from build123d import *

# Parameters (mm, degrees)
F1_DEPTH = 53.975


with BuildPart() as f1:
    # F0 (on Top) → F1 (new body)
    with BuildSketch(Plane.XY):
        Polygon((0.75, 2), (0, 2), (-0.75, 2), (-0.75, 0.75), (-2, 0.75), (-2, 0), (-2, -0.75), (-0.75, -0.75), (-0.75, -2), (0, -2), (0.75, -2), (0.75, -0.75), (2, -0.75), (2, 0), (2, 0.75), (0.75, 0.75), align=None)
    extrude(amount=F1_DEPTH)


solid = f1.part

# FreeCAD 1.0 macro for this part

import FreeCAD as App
import Part
import Sketcher
from FreeCAD import Vector
Q = App.Units.Quantity

doc = App.newDocument("Part")
body = doc.addObject("PartDesign::Body", "Body")

sketch1 = doc.addObject("Sketcher::SketchObject", "Sketch")
body.addObject(sketch1)
sketch1.AttachmentSupport = (doc.XY_Plane, [""])
sketch1.MapMode = "FlatFace"
sketch1.addGeometry([
    Part.LineSegment(Vector(0.75, 2, 0), Vector(-0.75, 2, 0)),
    Part.LineSegment(Vector(-0.75, 2, 0), Vector(-0.75, 0.75, 0)),
    Part.LineSegment(Vector(-0.75, 0.75, 0), Vector(-2, 0.75, 0)),
    Part.LineSegment(Vector(-2, 0.75, 0), Vector(-2, -0.75, 0)),
    Part.LineSegment(Vector(-2, -0.75, 0), Vector(-0.75, -0.75, 0)),
    Part.LineSegment(Vector(-0.75, -0.75, 0), Vector(-0.75, -2, 0)),
    Part.LineSegment(Vector(-0.75, -2, 0), Vector(0.75, -2, 0)),
    Part.LineSegment(Vector(0.75, -2, 0), Vector(0.75, -0.75, 0)),
    Part.LineSegment(Vector(0.75, -0.75, 0), Vector(2, -0.75, 0)),
    Part.LineSegment(Vector(2, -0.75, 0), Vector(2, 0.75, 0)),
    Part.LineSegment(Vector(2, 0.75, 0), Vector(0.75, 0.75, 0)),
    Part.LineSegment(Vector(0.75, 0.75, 0), Vector(0.75, 2, 0)),
], False)
sketch1.addConstraint([
    Sketcher.Constraint("Coincident", 0, 2, 1, 1),
    Sketcher.Constraint("Coincident", 1, 2, 2, 1),
    Sketcher.Constraint("Coincident", 2, 2, 3, 1),
    Sketcher.Constraint("Coincident", 3, 2, 4, 1),
    Sketcher.Constraint("Coincident", 4, 2, 5, 1),
    Sketcher.Constraint("Coincident", 5, 2, 6, 1),
    Sketcher.Constraint("Coincident", 6, 2, 7, 1),
    Sketcher.Constraint("Coincident", 7, 2, 8, 1),
    Sketcher.Constraint("Coincident", 8, 2, 9, 1),
    Sketcher.Constraint("Coincident", 9, 2, 10, 1),
    Sketcher.Constraint("Coincident", 10, 2, 11, 1),
    Sketcher.Constraint("Coincident", 11, 2, 0, 1),
    Sketcher.Constraint("Horizontal", 0),
    Sketcher.Constraint("Vertical", 1),
    Sketcher.Constraint("Horizontal", 2),
    Sketcher.Constraint("Vertical", 3),
    Sketcher.Constraint("Horizontal", 4),
    Sketcher.Constraint("Vertical", 5),
    Sketcher.Constraint("Horizontal", 6),
    Sketcher.Constraint("Vertical", 7),
    Sketcher.Constraint("Horizontal", 8),
    Sketcher.Constraint("Vertical", 9),
    Sketcher.Constraint("Horizontal", 10),
    Sketcher.Constraint("Vertical", 11),
    Sketcher.Constraint("Symmetric", 0, 2, 6, 2, -1, 1),
    Sketcher.Constraint("Symmetric", 2, 2, 8, 2, -1, 1),
    Sketcher.Constraint("Symmetric", 4, 2, 10, 2, -1, 1),
    Sketcher.Constraint("Symmetric", 4, 2, 7, 2, -2),
    Sketcher.Constraint("Equal", 10, 1),
    Sketcher.Constraint("Equal", 6, 3),
    Sketcher.Constraint("DistanceX", 0, 2, 0, 1, Q("1.5 mm")),
    Sketcher.Constraint("DistanceY", -1, 1, 0, 2, Q("2 mm")),
])
pad1 = doc.addObject("PartDesign::Pad", "Pad")
body.addObject(pad1)
pad1.Profile = sketch1
pad1.Length = 53.975

doc.recompute()
